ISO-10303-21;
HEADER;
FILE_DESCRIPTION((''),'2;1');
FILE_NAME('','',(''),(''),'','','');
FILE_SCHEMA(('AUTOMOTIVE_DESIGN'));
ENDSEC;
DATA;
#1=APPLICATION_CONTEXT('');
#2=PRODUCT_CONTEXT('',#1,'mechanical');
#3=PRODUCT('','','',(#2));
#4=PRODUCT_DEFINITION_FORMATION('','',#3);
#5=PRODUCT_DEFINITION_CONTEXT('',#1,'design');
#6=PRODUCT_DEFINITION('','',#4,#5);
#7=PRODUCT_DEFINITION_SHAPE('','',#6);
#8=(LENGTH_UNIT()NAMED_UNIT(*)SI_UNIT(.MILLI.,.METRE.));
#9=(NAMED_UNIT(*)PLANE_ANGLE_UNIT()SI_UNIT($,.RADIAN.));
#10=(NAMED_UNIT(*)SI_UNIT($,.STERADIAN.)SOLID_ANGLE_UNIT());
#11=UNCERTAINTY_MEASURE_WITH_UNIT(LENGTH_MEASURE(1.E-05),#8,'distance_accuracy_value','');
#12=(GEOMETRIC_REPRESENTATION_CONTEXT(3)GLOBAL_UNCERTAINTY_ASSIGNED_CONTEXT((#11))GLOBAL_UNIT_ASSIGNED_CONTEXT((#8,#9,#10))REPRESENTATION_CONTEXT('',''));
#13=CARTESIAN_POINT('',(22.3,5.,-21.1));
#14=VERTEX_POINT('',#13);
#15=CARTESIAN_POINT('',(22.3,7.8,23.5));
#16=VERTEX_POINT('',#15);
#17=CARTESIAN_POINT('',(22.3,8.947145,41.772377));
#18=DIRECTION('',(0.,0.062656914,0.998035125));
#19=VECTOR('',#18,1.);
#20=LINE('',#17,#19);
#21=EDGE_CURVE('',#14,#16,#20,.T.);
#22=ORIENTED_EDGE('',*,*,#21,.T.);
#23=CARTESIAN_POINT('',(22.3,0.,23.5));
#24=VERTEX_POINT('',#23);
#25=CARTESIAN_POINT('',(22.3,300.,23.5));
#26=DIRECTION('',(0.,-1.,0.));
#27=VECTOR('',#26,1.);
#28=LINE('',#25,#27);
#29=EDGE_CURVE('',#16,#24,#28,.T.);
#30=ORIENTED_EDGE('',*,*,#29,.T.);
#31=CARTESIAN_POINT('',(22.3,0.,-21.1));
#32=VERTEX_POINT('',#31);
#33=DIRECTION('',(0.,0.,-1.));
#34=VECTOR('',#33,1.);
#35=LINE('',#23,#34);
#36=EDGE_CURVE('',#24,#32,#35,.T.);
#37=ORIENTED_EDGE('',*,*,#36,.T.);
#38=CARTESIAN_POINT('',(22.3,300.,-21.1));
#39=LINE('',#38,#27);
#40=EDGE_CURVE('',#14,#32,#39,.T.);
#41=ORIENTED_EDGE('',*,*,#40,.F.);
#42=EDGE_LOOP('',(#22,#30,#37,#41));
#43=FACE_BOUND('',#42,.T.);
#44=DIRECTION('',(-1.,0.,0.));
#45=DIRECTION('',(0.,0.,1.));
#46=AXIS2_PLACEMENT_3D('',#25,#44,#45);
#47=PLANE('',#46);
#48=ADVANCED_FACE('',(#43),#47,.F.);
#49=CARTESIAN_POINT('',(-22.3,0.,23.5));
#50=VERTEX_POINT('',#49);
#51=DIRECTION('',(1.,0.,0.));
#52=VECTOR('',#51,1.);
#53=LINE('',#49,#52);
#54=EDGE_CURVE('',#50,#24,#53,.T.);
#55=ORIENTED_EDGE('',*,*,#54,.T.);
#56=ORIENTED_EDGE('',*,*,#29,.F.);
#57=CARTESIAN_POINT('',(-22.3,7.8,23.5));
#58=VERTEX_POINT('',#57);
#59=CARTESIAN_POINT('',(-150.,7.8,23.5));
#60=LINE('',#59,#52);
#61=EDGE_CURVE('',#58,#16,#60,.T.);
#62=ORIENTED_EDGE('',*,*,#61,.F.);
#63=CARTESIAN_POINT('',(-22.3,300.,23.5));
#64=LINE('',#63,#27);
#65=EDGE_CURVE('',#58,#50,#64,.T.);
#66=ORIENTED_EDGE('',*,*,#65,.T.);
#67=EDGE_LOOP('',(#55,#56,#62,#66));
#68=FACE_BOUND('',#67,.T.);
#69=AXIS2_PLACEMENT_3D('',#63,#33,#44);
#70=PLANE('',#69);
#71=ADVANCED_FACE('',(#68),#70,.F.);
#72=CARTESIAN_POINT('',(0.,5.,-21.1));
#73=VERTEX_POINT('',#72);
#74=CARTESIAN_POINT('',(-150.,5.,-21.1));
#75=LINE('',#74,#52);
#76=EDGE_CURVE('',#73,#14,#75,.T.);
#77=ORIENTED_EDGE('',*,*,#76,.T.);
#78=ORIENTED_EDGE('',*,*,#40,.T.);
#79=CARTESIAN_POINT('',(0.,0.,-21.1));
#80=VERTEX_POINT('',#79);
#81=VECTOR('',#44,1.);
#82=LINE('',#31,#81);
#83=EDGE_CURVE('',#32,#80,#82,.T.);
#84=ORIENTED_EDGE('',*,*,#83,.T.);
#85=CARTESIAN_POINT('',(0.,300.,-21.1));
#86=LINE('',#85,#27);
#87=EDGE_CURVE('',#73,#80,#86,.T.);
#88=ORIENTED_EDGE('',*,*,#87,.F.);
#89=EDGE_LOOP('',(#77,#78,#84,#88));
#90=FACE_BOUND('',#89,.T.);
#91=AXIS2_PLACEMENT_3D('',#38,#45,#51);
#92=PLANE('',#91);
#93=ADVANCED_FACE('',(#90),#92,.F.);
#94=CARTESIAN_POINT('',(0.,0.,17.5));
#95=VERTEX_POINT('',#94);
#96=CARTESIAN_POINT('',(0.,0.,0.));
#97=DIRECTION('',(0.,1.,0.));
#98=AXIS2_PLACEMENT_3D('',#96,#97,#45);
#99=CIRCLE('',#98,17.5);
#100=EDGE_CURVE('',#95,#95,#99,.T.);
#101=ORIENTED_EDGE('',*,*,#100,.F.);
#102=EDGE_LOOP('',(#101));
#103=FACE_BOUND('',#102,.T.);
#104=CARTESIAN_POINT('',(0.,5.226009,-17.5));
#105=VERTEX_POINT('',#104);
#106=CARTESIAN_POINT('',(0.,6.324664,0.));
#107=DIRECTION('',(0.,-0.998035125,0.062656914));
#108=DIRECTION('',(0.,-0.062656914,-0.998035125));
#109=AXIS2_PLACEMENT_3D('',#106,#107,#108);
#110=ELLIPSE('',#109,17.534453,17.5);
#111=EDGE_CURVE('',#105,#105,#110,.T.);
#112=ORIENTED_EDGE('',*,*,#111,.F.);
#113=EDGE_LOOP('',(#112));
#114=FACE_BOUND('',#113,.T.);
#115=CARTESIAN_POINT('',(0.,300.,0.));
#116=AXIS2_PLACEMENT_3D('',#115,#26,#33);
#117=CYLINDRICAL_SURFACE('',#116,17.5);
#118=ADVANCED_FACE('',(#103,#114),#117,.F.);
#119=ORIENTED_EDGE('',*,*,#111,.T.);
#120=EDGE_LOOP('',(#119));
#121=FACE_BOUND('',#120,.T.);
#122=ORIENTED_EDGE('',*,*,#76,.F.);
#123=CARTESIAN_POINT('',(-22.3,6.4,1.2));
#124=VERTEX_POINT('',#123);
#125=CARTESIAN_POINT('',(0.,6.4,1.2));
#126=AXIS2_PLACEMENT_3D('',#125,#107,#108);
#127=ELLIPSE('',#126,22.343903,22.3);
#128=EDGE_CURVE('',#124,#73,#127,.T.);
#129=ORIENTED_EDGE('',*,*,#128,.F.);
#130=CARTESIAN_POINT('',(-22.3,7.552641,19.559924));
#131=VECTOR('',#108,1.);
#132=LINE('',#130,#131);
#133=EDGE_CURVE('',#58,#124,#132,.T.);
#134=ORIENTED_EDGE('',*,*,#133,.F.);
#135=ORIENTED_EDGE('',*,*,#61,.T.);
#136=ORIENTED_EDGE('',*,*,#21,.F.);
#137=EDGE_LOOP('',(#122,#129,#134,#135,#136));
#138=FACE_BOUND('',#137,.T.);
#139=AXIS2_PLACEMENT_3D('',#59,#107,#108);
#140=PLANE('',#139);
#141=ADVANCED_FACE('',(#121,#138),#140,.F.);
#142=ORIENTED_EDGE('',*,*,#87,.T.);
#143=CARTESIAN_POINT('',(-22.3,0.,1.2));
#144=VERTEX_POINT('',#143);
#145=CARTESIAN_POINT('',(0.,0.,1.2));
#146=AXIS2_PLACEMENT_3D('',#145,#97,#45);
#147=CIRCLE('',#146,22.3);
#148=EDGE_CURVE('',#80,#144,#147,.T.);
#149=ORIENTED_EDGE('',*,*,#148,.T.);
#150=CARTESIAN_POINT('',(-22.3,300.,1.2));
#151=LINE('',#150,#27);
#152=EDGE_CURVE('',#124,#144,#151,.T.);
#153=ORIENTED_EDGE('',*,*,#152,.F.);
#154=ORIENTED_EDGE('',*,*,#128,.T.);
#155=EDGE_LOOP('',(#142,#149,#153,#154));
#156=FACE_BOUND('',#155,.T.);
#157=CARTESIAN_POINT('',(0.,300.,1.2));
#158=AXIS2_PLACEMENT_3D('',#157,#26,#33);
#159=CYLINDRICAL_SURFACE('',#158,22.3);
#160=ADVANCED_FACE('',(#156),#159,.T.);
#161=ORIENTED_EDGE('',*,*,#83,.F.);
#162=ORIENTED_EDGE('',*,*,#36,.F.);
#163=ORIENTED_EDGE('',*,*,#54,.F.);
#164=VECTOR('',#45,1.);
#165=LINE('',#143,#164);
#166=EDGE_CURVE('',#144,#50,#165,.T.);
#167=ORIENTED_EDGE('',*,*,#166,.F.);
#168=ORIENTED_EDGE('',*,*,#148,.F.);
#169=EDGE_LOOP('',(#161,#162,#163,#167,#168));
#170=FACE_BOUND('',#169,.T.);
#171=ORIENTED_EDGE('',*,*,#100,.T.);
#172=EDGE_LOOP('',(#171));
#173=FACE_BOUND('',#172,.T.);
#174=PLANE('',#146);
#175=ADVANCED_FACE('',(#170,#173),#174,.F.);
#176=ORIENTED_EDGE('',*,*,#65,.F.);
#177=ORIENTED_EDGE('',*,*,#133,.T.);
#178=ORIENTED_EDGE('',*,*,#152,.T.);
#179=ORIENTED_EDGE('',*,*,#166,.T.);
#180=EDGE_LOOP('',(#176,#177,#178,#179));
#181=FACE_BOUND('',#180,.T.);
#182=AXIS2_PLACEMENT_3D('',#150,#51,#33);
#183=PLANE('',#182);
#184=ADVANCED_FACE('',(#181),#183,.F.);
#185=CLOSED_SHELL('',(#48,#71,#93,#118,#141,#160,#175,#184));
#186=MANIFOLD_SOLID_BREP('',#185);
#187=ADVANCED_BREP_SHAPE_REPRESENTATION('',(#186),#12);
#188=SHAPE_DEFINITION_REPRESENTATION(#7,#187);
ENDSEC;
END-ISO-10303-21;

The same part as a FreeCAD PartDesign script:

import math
import FreeCAD as App
import Part
import Sketcher
Q = App.Units.Quantity

doc = App.newDocument("Part")
body = doc.addObject("PartDesign::Body", "Body")

# Sketch on XZ plane
sketch1 = doc.addObject("Sketcher::SketchObject", "Sketch")
body.addObject(sketch1)
sketch1.AttachmentSupport = (doc.XZ_Plane, [""])
sketch1.MapMode = "FlatFace"
sketch1.addGeometry([
    Part.LineSegment(App.Vector(-22, 24, 0), App.Vector(22, 24, 0)),  # 0
    Part.LineSegment(App.Vector(22, 24, 0), App.Vector(22, -21, 0)),  # 1
    Part.LineSegment(App.Vector(22, -21, 0), App.Vector(0, -21, 0)),  # 2
    Part.ArcOfCircle(Part.Circle(App.Vector(0, 1, 0), App.Vector(0, 0, 1), 22), math.radians(-180), math.radians(-90)),  # 3
    Part.LineSegment(App.Vector(-22, 1, 0), App.Vector(-22, 24, 0)),  # 4
    Part.Circle(App.Vector(0, 0, 0), App.Vector(0, 0, 1), 18),  # 5
], False)
sketch1.addConstraint([
    Sketcher.Constraint("Coincident", 0, 2, 1, 1),
    Sketcher.Constraint("Coincident", 1, 2, 2, 1),
    Sketcher.Constraint("Tangent", 2, 2, 3, 2),
    Sketcher.Constraint("Tangent", 3, 1, 4, 1),
    Sketcher.Constraint("Coincident", 4, 2, 0, 1),
    Sketcher.Constraint("Horizontal", 0),
    Sketcher.Constraint("Vertical", 1),
    Sketcher.Constraint("Horizontal", 2),
    Sketcher.Constraint("Vertical", 4),
    Sketcher.Constraint("Coincident", 5, 3, -1, 1),
    Sketcher.Constraint("PointOnObject", 3, 3, -2),
    Sketcher.Constraint("Equal", 0, 1),
    Sketcher.Constraint("Diameter", 5, Q("35 mm")),
    Sketcher.Constraint("Radius", 3, Q("22.3 mm")),
    Sketcher.Constraint("DistanceX", 0, 1, 0, 2, Q("44.6 mm")),
    Sketcher.Constraint("DistanceY", -1, 1, 3, 3, Q("1.2 mm")),
])
pad1 = doc.addObject("PartDesign::Pad", "Pad")
body.addObject(pad1)
pad1.Profile = sketch1
pad1.Length = 300
pad1.Reversed = True

# Sketch on YZ plane
sketch2 = doc.addObject("Sketcher::SketchObject", "Sketch001")
body.addObject(sketch2)
sketch2.AttachmentSupport = (doc.YZ_Plane, [""])
sketch2.MapMode = "FlatFace"
sketch2.addGeometry([
    Part.LineSegment(App.Vector(8, 24, 0), App.Vector(5, -21, 0)),  # 0
    Part.LineSegment(App.Vector(5, -21, 0), App.Vector(5, -90, 0)),  # 1
    Part.LineSegment(App.Vector(5, -90, 0), App.Vector(332, -90, 0)),  # 2
    Part.LineSegment(App.Vector(332, -90, 0), App.Vector(332, 24, 0)),  # 3
    Part.LineSegment(App.Vector(332, 24, 0), App.Vector(8, 24, 0)),  # 4
], False)
sketch2.addConstraint([
    Sketcher.Constraint("Coincident", 0, 2, 1, 1),
    Sketcher.Constraint("Coincident", 1, 2, 2, 1),
    Sketcher.Constraint("Coincident", 2, 2, 3, 1),
    Sketcher.Constraint("Coincident", 3, 2, 4, 1),
    Sketcher.Constraint("Coincident", 4, 2, 0, 1),
    Sketcher.Constraint("Vertical", 1),
    Sketcher.Constraint("Horizontal", 2),
    Sketcher.Constraint("Vertical", 3),
    Sketcher.Constraint("Horizontal", 4),
    Sketcher.Constraint("DistanceX", -1, 1, 0, 2, Q("5 mm")),
    Sketcher.Constraint("DistanceY", 0, 2, -1, 1, Q("21.1 mm")),
    Sketcher.Constraint("DistanceY", -1, 1, 3, 2, Q("23.5 mm")),
    Sketcher.Constraint("DistanceX", -1, 1, 4, 2, Q("7.8 mm")),
    Sketcher.Constraint("DistanceX", 2, 1, 2, 2, Q("326.939309 mm")),
    Sketcher.Constraint("DistanceY", 1, 2, 1, 1, Q("68.795744 mm")),
])
pocket1 = doc.addObject("PartDesign::Pocket", "Pocket")
body.addObject(pocket1)
pocket1.Profile = sketch2
pocket1.Length = 300
pocket1.Midplane = True

doc.recompute()
